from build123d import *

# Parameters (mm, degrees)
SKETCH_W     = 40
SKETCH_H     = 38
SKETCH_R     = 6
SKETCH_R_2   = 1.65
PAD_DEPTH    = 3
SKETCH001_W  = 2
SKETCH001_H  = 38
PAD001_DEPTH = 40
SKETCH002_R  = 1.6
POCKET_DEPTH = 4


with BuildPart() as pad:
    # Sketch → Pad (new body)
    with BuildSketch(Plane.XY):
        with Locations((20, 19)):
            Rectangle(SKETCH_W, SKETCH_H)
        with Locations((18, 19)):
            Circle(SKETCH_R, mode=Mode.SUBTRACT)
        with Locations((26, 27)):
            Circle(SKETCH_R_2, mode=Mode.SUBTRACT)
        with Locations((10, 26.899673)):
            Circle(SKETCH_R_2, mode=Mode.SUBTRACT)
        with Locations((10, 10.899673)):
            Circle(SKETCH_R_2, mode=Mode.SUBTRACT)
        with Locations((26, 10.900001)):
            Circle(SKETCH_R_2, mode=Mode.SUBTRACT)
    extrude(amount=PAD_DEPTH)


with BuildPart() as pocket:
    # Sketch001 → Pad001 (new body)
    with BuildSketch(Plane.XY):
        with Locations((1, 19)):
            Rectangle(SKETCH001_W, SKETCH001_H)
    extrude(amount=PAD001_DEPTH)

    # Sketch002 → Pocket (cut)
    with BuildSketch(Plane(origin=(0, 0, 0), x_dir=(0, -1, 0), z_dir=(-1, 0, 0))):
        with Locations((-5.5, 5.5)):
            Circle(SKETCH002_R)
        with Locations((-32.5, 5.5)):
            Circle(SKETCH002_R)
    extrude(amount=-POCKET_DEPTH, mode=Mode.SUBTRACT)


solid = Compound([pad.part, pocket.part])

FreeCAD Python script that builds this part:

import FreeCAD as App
import Part
import Sketcher

V = App.Vector
Q = App.Units.Quantity

doc = App.newDocument("Part")
params = doc.addObject("Spreadsheet::Sheet", "Params")
for row, (alias, value) in enumerate([
    ("sketch1_diameter", "12 mm"),
    ("sketch1_diameter2", "3.3 mm"),
    ("sketch1_width", "40 mm"),
    ("sketch1_height", "38 mm"),
    ("pad1_length", "3 mm"),
    ("sketch2_width", "2 mm"),
    ("sketch2_height", "38 mm"),
    ("pad2_length", "40 mm"),
    ("sketch3_diameter", "3.2 mm"),
    ("pocket1_length", "4 mm"),
], start=1):
    params.set(f"A{row}", alias)
    params.set(f"B{row}", "=" + value)
    params.setAlias(f"B{row}", alias)

body = doc.addObject("PartDesign::Body", "Body")

sketch1 = body.newObject("Sketcher::SketchObject", "Sketch")
sketch1.AttachmentSupport = (doc.getObject("XY_Plane"), [""])
sketch1.MapMode = "FlatFace"
sketch1.addGeometry([
    Part.LineSegment(V(0, 38, 0), V(0, 0, 0)),
    Part.LineSegment(V(0, 0, 0), V(40, 0, 0)),
    Part.LineSegment(V(40, 0, 0), V(40, 38, 0)),
    Part.LineSegment(V(40, 38, 0), V(0, 38, 0)),
    Part.Circle(V(10, 10.9, 0), V(0, 0, 1), 1.6),
    Part.Circle(V(26, 10.9, 0), V(0, 0, 1), 1.6),
    Part.Circle(V(10, 26.9, 0), V(0, 0, 1), 1.6),
    Part.Circle(V(18, 19, 0), V(0, 0, 1), 6),
    Part.Circle(V(26, 27, 0), V(0, 0, 1), 1.6),
], False)
sketch1.addConstraint([
    Sketcher.Constraint("Coincident", 0, 2, 1, 1),
    Sketcher.Constraint("Coincident", 1, 2, 2, 1),
    Sketcher.Constraint("Coincident", 2, 2, 3, 1),
    Sketcher.Constraint("Coincident", 3, 2, 0, 1),
    Sketcher.Constraint("Vertical", 0),
    Sketcher.Constraint("Horizontal", 1),
    Sketcher.Constraint("Vertical", 2),
    Sketcher.Constraint("Horizontal", 3),
    Sketcher.Constraint("Coincident", 0, 2, -1, 1),
    Sketcher.Constraint("Equal", 4, 5),
    Sketcher.Constraint("Equal", 5, 6),
    Sketcher.Constraint("Equal", 6, 8),
    Sketcher.Constraint("Vertical", 4, 3, 6, 3),
    Sketcher.Constraint("Vertical", 5, 3, 8, 3),
    Sketcher.Constraint("Diameter", 7, Q("12 mm")),
    Sketcher.Constraint("Diameter", 4, Q("3.3 mm")),
    Sketcher.Constraint("DistanceX", 1, 1, 1, 2, Q("40 mm")),
    Sketcher.Constraint("DistanceY", 0, 2, 0, 1, Q("38 mm")),
    Sketcher.Constraint("DistanceX", -1, 1, 4, 3, Q("10 mm")),
    Sketcher.Constraint("DistanceX", -1, 1, 5, 3, Q("26 mm")),
    Sketcher.Constraint("DistanceX", -1, 1, 7, 3, Q("18 mm")),
    Sketcher.Constraint("DistanceY", -1, 1, 7, 3, Q("19 mm")),
    Sketcher.Constraint("DistanceY", -1, 1, 8, 3, Q("27 mm")),
    Sketcher.Constraint("DistanceY", 4, 3, 6, 3, Q("16 mm")),
    Sketcher.Constraint("DistanceY", -1, 1, 5, 3, Q("10.900001 mm")),
    Sketcher.Constraint("DistanceY", -1, 1, 4, 3, Q("10.899673 mm")),
])
sketch1.setExpression("Constraints[14]", "Params.sketch1_diameter")
sketch1.setExpression("Constraints[15]", "Params.sketch1_diameter2")
sketch1.setExpression("Constraints[16]", "Params.sketch1_width")
sketch1.setExpression("Constraints[17]", "Params.sketch1_height")
pad1 = body.newObject("PartDesign::Pad", "Pad")
pad1.Profile = sketch1
pad1.setExpression("Length", "Params.pad1_length")
body2 = doc.addObject("PartDesign::Body", "Body001")

sketch2 = body2.newObject("Sketcher::SketchObject", "Sketch001")
sketch2.AttachmentSupport = (doc.getObject("XY_Plane001"), [""])
sketch2.MapMode = "FlatFace"
sketch2.addGeometry([
    Part.LineSegment(V(0, 38, 0), V(0, 0, 0)),
    Part.LineSegment(V(0, 0, 0), V(2, 0, 0)),
    Part.LineSegment(V(2, 0, 0), V(2, 38, 0)),
    Part.LineSegment(V(2, 38, 0), V(0, 38, 0)),
], False)
sketch2.addConstraint([
    Sketcher.Constraint("Coincident", 0, 2, 1, 1),
    Sketcher.Constraint("Coincident", 1, 2, 2, 1),
    Sketcher.Constraint("Coincident", 2, 2, 3, 1),
    Sketcher.Constraint("Coincident", 3, 2, 0, 1),
    Sketcher.Constraint("Vertical", 0),
    Sketcher.Constraint("Horizontal", 1),
    Sketcher.Constraint("Vertical", 2),
    Sketcher.Constraint("Horizontal", 3),
    Sketcher.Constraint("Coincident", 0, 2, -1, 1),
    Sketcher.Constraint("DistanceX", 1, 1, 1, 2, Q("2 mm")),
    Sketcher.Constraint("DistanceY", 0, 2, 0, 1, Q("38 mm")),
])
sketch2.setExpression("Constraints[9]", "Params.sketch2_width")
sketch2.setExpression("Constraints[10]", "Params.sketch2_height")
pad2 = body2.newObject("PartDesign::Pad", "Pad001")
pad2.Profile = sketch2
pad2.setExpression("Length", "Params.pad2_length")

sketch3 = body2.newObject("Sketcher::SketchObject", "Sketch002")
sketch3.AttachmentSupport = (doc.getObject("YZ_Plane001"), [""])
sketch3.MapMode = "FlatFace"
sketch3.addGeometry([
    Part.Circle(V(5.5, 5.5, 0), V(0, 0, 1), 1.6),
    Part.Circle(V(32.5, 5.5, 0), V(0, 0, 1), 1.6),
], False)
sketch3.addConstraint([
    Sketcher.Constraint("Equal", 0, 1),
    Sketcher.Constraint("Horizontal", 0, 3, 1, 3),
    Sketcher.Constraint("Diameter", 0, Q("3.2 mm")),
    Sketcher.Constraint("DistanceX", 0, 3, 1, 3, Q("27 mm")),
    Sketcher.Constraint("DistanceX", -1, 1, 0, 3, Q("5.5 mm")),
    Sketcher.Constraint("DistanceY", -1, 1, 0, 3, Q("5.5 mm")),
])
sketch3.setExpression("Constraints[2]", "Params.sketch3_diameter")
pocket1 = body2.newObject("PartDesign::Pocket", "Pocket")
pocket1.Profile = sketch3
pocket1.setExpression("Length", "Params.pocket1_length")
pocket1.Reversed = True

doc.recompute()
